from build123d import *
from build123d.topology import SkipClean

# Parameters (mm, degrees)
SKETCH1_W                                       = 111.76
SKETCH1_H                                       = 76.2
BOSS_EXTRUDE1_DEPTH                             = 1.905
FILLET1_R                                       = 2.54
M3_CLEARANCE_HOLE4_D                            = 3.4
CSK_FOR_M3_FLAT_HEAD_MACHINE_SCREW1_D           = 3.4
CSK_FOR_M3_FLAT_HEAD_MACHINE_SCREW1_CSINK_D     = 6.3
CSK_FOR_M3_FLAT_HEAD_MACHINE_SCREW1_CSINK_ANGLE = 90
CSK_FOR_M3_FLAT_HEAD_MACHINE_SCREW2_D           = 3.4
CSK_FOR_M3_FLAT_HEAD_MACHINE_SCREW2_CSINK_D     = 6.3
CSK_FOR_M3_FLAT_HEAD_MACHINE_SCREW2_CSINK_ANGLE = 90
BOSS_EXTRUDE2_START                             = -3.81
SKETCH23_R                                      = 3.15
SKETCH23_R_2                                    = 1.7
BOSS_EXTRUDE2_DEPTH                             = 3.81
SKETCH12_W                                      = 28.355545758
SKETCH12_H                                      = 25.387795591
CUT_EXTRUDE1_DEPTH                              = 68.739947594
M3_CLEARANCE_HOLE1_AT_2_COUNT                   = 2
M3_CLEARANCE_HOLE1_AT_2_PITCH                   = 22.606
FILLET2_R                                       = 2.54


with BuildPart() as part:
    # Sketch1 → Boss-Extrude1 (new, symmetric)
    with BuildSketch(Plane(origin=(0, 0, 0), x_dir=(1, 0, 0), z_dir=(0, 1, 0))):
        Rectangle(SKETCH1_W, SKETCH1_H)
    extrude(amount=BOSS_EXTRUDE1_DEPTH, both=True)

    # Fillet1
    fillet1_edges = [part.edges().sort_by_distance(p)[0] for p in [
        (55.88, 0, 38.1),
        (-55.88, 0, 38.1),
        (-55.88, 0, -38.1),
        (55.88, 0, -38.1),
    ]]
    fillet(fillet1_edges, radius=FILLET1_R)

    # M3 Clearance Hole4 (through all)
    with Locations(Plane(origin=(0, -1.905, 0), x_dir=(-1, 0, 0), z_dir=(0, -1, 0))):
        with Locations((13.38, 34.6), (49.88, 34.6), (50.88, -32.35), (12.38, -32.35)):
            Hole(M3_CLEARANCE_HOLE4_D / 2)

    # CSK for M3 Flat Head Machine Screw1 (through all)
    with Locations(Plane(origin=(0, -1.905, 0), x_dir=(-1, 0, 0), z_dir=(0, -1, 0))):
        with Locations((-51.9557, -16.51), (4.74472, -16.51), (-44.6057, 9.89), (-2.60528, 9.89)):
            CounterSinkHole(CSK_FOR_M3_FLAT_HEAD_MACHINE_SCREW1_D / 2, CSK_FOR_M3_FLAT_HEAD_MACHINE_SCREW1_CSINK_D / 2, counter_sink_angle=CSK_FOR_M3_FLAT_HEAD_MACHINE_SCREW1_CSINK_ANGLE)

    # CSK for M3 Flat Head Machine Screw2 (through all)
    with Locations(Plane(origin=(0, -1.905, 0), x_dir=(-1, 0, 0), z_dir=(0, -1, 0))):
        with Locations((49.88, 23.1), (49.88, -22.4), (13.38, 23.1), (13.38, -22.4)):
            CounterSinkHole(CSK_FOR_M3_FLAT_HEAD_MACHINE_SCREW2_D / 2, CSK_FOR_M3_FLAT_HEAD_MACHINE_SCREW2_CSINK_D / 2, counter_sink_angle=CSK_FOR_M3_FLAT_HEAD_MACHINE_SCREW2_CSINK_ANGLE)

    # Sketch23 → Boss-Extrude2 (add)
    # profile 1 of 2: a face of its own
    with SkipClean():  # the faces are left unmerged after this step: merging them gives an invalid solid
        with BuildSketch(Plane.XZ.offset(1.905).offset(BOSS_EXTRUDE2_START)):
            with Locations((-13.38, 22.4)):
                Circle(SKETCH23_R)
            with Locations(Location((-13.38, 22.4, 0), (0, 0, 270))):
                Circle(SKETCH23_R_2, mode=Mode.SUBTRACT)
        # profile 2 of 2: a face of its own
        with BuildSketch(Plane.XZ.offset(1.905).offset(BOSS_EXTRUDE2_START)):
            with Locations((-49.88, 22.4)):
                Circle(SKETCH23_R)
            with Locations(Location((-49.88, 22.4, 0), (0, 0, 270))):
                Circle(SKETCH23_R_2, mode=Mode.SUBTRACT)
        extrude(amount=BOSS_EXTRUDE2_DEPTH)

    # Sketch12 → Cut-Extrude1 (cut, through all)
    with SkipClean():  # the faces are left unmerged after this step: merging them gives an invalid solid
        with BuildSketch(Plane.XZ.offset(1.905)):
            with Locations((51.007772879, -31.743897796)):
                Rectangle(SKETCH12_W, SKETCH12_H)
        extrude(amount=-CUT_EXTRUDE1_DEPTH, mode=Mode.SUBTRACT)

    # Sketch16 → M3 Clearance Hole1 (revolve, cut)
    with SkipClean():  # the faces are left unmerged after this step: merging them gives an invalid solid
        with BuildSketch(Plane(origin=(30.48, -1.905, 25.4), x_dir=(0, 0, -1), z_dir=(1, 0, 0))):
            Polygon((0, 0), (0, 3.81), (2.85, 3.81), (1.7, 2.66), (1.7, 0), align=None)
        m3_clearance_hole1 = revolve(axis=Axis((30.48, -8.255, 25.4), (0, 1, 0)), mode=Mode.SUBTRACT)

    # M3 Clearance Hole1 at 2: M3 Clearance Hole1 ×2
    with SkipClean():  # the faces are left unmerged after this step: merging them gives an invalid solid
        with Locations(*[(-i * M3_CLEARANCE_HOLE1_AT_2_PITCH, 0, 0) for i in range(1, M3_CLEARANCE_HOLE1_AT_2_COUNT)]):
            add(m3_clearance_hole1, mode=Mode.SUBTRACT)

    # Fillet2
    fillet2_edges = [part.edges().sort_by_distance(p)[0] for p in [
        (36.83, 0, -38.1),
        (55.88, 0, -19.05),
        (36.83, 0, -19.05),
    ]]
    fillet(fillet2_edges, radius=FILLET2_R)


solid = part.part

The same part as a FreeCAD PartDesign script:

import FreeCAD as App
import Part
import Sketcher

V = App.Vector
Q = App.Units.Quantity


def edges_at(feature, points):
    """Names of the edges that pass closest to the given points."""
    edges = feature.Shape.Edges
    near = lambda p: min(range(len(edges)), key=lambda i: edges[i].distToShape(Part.Vertex(*p))[0])
    return sorted({f"Edge{near(p) + 1}" for p in points})

doc = App.newDocument("Part")
body = doc.addObject("PartDesign::Body", "Body")

# Sketch on XZ plane
sketch1 = doc.addObject("Sketcher::SketchObject", "Sketch")
body.addObject(sketch1)
sketch1.AttachmentSupport = (doc.XZ_Plane, [""])
sketch1.MapMode = "FlatFace"
sketch1.addGeometry(Part.LineSegment(V(-56, -38, 0), V(-56, 38, 0)), False)
sketch1.addGeometry(Part.LineSegment(V(-56, 38, 0), V(56, 38, 0)), False)
sketch1.addGeometry(Part.LineSegment(V(56, 38, 0), V(56, -38, 0)), False)
sketch1.addGeometry(Part.LineSegment(V(56, -38, 0), V(-56, -38, 0)), False)
sketch1.addConstraint(Sketcher.Constraint("Coincident", 0, 2, 1, 1))
sketch1.addConstraint(Sketcher.Constraint("Coincident", 1, 2, 2, 1))
sketch1.addConstraint(Sketcher.Constraint("Coincident", 2, 2, 3, 1))
sketch1.addConstraint(Sketcher.Constraint("Coincident", 3, 2, 0, 1))
sketch1.addConstraint(Sketcher.Constraint("Vertical", 0))
sketch1.addConstraint(Sketcher.Constraint("Horizontal", 1))
sketch1.addConstraint(Sketcher.Constraint("Vertical", 2))
sketch1.addConstraint(Sketcher.Constraint("Horizontal", 3))
sketch1.addConstraint(Sketcher.Constraint("Symmetric", 0, 2, 2, 2, -1, 1))
sketch1.addConstraint(Sketcher.Constraint("DistanceY", 0, 1, 0, 2, Q("3 in")))
sketch1.addConstraint(Sketcher.Constraint("DistanceX", 1, 1, 1, 2, Q("4.4 in")))
pad1 = doc.addObject("PartDesign::Pad", "Pad")
body.addObject(pad1)
pad1.Profile = sketch1
pad1.Length = Q("0.15 in")
pad1.Midplane = True
doc.recompute()

fillet = doc.addObject("PartDesign::Fillet", "Fillet")
body.addObject(fillet)
fillet.Base = (pad1, edges_at(pad1, [
    (55.88, 0, 38.1),
    (-55.88, 0, 38.1),
    (-55.88, 0, -38.1),
    (55.88, 0, -38.1),
]))
fillet.Radius = Q("0.1 in")

# Sketch on XZ plane
sketch2 = doc.addObject("Sketcher::SketchObject", "Sketch001")
body.addObject(sketch2)
sketch2.AttachmentSupport = (doc.XZ_Plane, [""])
sketch2.MapMode = "FlatFace"
sketch2.AttachmentOffset = App.Placement(V(0, 0, 0.075 * 25.4), App.Rotation())
sketch2.addGeometry(Part.Circle(V(-13.4, -34.6, 0), V(0, 0, 1), 1.7), False)
sketch2.addGeometry(Part.Circle(V(-49.9, -34.6, 0), V(0, 0, 1), 1.7), False)
sketch2.addGeometry(Part.Circle(V(-50.9, 32.4, 0), V(0, 0, 1), 1.7), False)
sketch2.addGeometry(Part.Circle(V(-12.4, 32.4, 0), V(0, 0, 1), 1.7), False)
sketch2.addConstraint(Sketcher.Constraint("Equal", 0, 1))
sketch2.addConstraint(Sketcher.Constraint("Equal", 1, 2))
sketch2.addConstraint(Sketcher.Constraint("Equal", 2, 3))
sketch2.addConstraint(Sketcher.Constraint("Horizontal", 0, 3, 1, 3))
sketch2.addConstraint(Sketcher.Constraint("Horizontal", 2, 3, 3, 3))
sketch2.addConstraint(Sketcher.Constraint("Diameter", 0, Q("3.4 mm")))
sketch2.addConstraint(Sketcher.Constraint("DistanceX", 0, 3, -1, 1, Q("13.38 mm")))
sketch2.addConstraint(Sketcher.Constraint("DistanceY", 0, 3, -1, 1, Q("34.6 mm")))
sketch2.addConstraint(Sketcher.Constraint("DistanceX", 1, 3, -1, 1, Q("49.88 mm")))
sketch2.addConstraint(Sketcher.Constraint("DistanceX", 2, 3, -1, 1, Q("50.88 mm")))
sketch2.addConstraint(Sketcher.Constraint("DistanceY", -1, 1, 2, 3, Q("32.35 mm")))
sketch2.addConstraint(Sketcher.Constraint("DistanceX", 3, 3, -1, 1, Q("12.38 mm")))
doc.recompute()
hole = doc.addObject("PartDesign::Hole", "Hole")
body.addObject(hole)
hole.Profile = sketch2
hole.ThreadType = "None"
hole.Diameter = 3.4
hole.DepthType = "ThroughAll"

# Sketch on XZ plane
sketch3 = doc.addObject("Sketcher::SketchObject", "Sketch002")
body.addObject(sketch3)
sketch3.AttachmentSupport = (doc.XZ_Plane, [""])
sketch3.MapMode = "FlatFace"
sketch3.AttachmentOffset = App.Placement(V(0, 0, 0.075 * 25.4), App.Rotation())
sketch3.addGeometry(Part.Circle(V(52, 16.5, 0), V(0, 0, 1), 1.7), False)
sketch3.addGeometry(Part.Circle(V(-4.7, 16.5, 0), V(0, 0, 1), 1.7), False)
sketch3.addGeometry(Part.Circle(V(44.6, -9.9, 0), V(0, 0, 1), 1.7), False)
sketch3.addGeometry(Part.Circle(V(2.6, -9.9, 0), V(0, 0, 1), 1.7), False)
sketch3.addConstraint(Sketcher.Constraint("Equal", 0, 1))
sketch3.addConstraint(Sketcher.Constraint("Equal", 1, 2))
sketch3.addConstraint(Sketcher.Constraint("Equal", 2, 3))
sketch3.addConstraint(Sketcher.Constraint("Horizontal", 0, 3, 1, 3))
sketch3.addConstraint(Sketcher.Constraint("Horizontal", 2, 3, 3, 3))
sketch3.addConstraint(Sketcher.Constraint("Diameter", 0, Q("3.4 mm")))
sketch3.addConstraint(Sketcher.Constraint("DistanceY", -1, 1, 0, 3, Q("0.65 in")))
sketch3.addConstraint(Sketcher.Constraint("DistanceX", -1, 1, 0, 3, Q("2.0455 in")))
sketch3.addConstraint(Sketcher.Constraint("DistanceX", 1, 3, -1, 1, Q("0.1868 in")))
sketch3.addConstraint(Sketcher.Constraint("DistanceX", -1, 1, 2, 3, Q("44.6057 mm")))
sketch3.addConstraint(Sketcher.Constraint("DistanceY", 2, 3, -1, 1, Q("9.89 mm")))
sketch3.addConstraint(Sketcher.Constraint("DistanceX", 1, 3, 3, 3, Q("7.35 mm")))
doc.recompute()
hole2 = doc.addObject("PartDesign::Hole", "Hole001")
body.addObject(hole2)
hole2.Profile = sketch3
hole2.ThreadType = "None"
hole2.Diameter = 3.4
hole2.DepthType = "ThroughAll"
hole2.HoleCutType = "Countersink"
hole2.HoleCutDiameter = 6.3
hole2.HoleCutCountersinkAngle = 90

# Sketch on XZ plane
sketch4 = doc.addObject("Sketcher::SketchObject", "Sketch003")
body.addObject(sketch4)
sketch4.AttachmentSupport = (doc.XZ_Plane, [""])
sketch4.MapMode = "FlatFace"
sketch4.AttachmentOffset = App.Placement(V(0, 0, 0.075 * 25.4), App.Rotation())
sketch4.addGeometry(Part.Circle(V(-49.9, -23.1, 0), V(0, 0, 1), 1.7), False)
sketch4.addGeometry(Part.Circle(V(-49.9, 22.4, 0), V(0, 0, 1), 1.7), False)
sketch4.addGeometry(Part.Circle(V(-13.4, -23.1, 0), V(0, 0, 1), 1.7), False)
sketch4.addGeometry(Part.Circle(V(-13.4, 22.4, 0), V(0, 0, 1), 1.7), False)
sketch4.addConstraint(Sketcher.Constraint("Equal", 0, 1))
sketch4.addConstraint(Sketcher.Constraint("Equal", 1, 2))
sketch4.addConstraint(Sketcher.Constraint("Equal", 2, 3))
sketch4.addConstraint(Sketcher.Constraint("Horizontal", 0, 3, 2, 3))
sketch4.addConstraint(Sketcher.Constraint("Horizontal", 1, 3, 3, 3))
sketch4.addConstraint(Sketcher.Constraint("Vertical", 0, 3, 1, 3))
sketch4.addConstraint(Sketcher.Constraint("Vertical", 2, 3, 3, 3))
sketch4.addConstraint(Sketcher.Constraint("Diameter", 0, Q("3.4 mm")))
sketch4.addConstraint(Sketcher.Constraint("DistanceX", 0, 3, -1, 1, Q("49.88 mm")))
sketch4.addConstraint(Sketcher.Constraint("DistanceY", 0, 3, -1, 1, Q("23.1 mm")))
sketch4.addConstraint(Sketcher.Constraint("DistanceY", -1, 1, 1, 3, Q("22.4 mm")))
sketch4.addConstraint(Sketcher.Constraint("DistanceX", 2, 3, -1, 1, Q("13.38 mm")))
doc.recompute()
hole3 = doc.addObject("PartDesign::Hole", "Hole002")
body.addObject(hole3)
hole3.Profile = sketch4
hole3.ThreadType = "None"
hole3.Diameter = 3.4
hole3.DepthType = "ThroughAll"
hole3.HoleCutType = "Countersink"
hole3.HoleCutDiameter = 6.3
hole3.HoleCutCountersinkAngle = 90

# Sketch on XZ plane
sketch5 = doc.addObject("Sketcher::SketchObject", "Sketch004")
body.addObject(sketch5)
sketch5.AttachmentSupport = (doc.XZ_Plane, [""])
sketch5.MapMode = "FlatFace"
sketch5.AttachmentOffset = App.Placement(V(0, 0, -0.075 * 25.4), App.Rotation())
sketch5.addGeometry(Part.Circle(V(-13.4, 22.4, 0), V(0, 0, 1), 3.1), False)
sketch5.addGeometry(Part.Circle(V(-13.4, 22.4, 0), V(0, 0, 1), 1.7), False)
sketch5.addGeometry(Part.Circle(V(-49.9, 22.4, 0), V(0, 0, 1), 3.1), False)
sketch5.addGeometry(Part.Circle(V(-49.9, 22.4, 0), V(0, 0, 1), 1.7), False)
sketch5.addConstraint(Sketcher.Constraint("Coincident", 1, 3, 0, 3))
sketch5.addConstraint(Sketcher.Constraint("Coincident", 3, 3, 2, 3))
sketch5.addConstraint(Sketcher.Constraint("Equal", 0, 2))
sketch5.addConstraint(Sketcher.Constraint("Equal", 1, 3))
sketch5.addConstraint(Sketcher.Constraint("Horizontal", 1, 3, 2, 3))
sketch5.addConstraint(Sketcher.Constraint("Diameter", 0, Q("6.3 mm")))
sketch5.addConstraint(Sketcher.Constraint("Diameter", 1, Q("3.4 mm")))
sketch5.addConstraint(Sketcher.Constraint("DistanceX", 0, 3, -1, 1, Q("13.38 mm")))
sketch5.addConstraint(Sketcher.Constraint("DistanceY", -1, 1, 0, 3, Q("22.4 mm")))
sketch5.addConstraint(Sketcher.Constraint("DistanceX", 2, 3, -1, 1, Q("49.88 mm")))
pad2 = doc.addObject("PartDesign::Pad", "Pad001")
body.addObject(pad2)
pad2.Profile = sketch5
pad2.Length = Q("0.15 in")

# Sketch on XZ plane
sketch6 = doc.addObject("Sketcher::SketchObject", "Sketch005")
body.addObject(sketch6)
sketch6.AttachmentSupport = (doc.XZ_Plane, [""])
sketch6.MapMode = "FlatFace"
sketch6.AttachmentOffset = App.Placement(V(0, 0, 0.075 * 25.4), App.Rotation())
sketch6.addGeometry(Part.LineSegment(V(37, -19, 0), V(37, -44, 0)), False)
sketch6.addGeometry(Part.LineSegment(V(37, -44, 0), V(65, -44, 0)), False)
sketch6.addGeometry(Part.LineSegment(V(65, -44, 0), V(65, -19, 0)), False)
sketch6.addGeometry(Part.LineSegment(V(65, -19, 0), V(37, -19, 0)), False)
sketch6.addConstraint(Sketcher.Constraint("Coincident", 0, 2, 1, 1))
sketch6.addConstraint(Sketcher.Constraint("Coincident", 1, 2, 2, 1))
sketch6.addConstraint(Sketcher.Constraint("Coincident", 2, 2, 3, 1))
sketch6.addConstraint(Sketcher.Constraint("Coincident", 3, 2, 0, 1))
sketch6.addConstraint(Sketcher.Constraint("Vertical", 0))
sketch6.addConstraint(Sketcher.Constraint("Horizontal", 1))
sketch6.addConstraint(Sketcher.Constraint("Vertical", 2))
sketch6.addConstraint(Sketcher.Constraint("Horizontal", 3))
sketch6.addConstraint(Sketcher.Constraint("DistanceX", -1, 1, 0, 2, Q("1.45 in")))
sketch6.addConstraint(Sketcher.Constraint("DistanceY", 2, 2, -1, 1, Q("0.75 in")))
sketch6.addConstraint(Sketcher.Constraint("DistanceX", 1, 1, 1, 2, Q("28.355546 mm")))
sketch6.addConstraint(Sketcher.Constraint("DistanceY", 0, 2, 0, 1, Q("25.387796 mm")))
pocket1 = doc.addObject("PartDesign::Pocket", "Pocket")
body.addObject(pocket1)
pocket1.Profile = sketch6
pocket1.Type = "ThroughAll"

# Sketch on YZ plane
sketch7 = doc.addObject("Sketcher::SketchObject", "Sketch006")
body.addObject(sketch7)
sketch7.AttachmentSupport = (doc.YZ_Plane, [""])
sketch7.MapMode = "FlatFace"
sketch7.AttachmentOffset = App.Placement(V(0, 0, 1.2 * 25.4), App.Rotation())
sketch7.addGeometry(Part.LineSegment(V(1.9, 25.4, 0), V(-1.9, 25.4, 0)), False)
sketch7.addGeometry(Part.LineSegment(V(-1.9, 25.4, 0), V(-1.9, 23.7, 0)), False)
sketch7.addGeometry(Part.LineSegment(V(-1.9, 23.7, 0), V(0.8, 23.7, 0)), False)
sketch7.addGeometry(Part.LineSegment(V(0.8, 23.7, 0), V(1.9, 22.6, 0)), False)
sketch7.addGeometry(Part.LineSegment(V(1.9, 22.6, 0), V(1.9, 25.4, 0)), False)
sketch7.addGeometry(Part.LineSegment(V(-1.9, 25.4, 0), V(1.9, 25.4, 0)), True)  # axis
sketch7.addConstraint(Sketcher.Constraint("Coincident", 0, 2, 1, 1))
sketch7.addConstraint(Sketcher.Constraint("Coincident", 1, 2, 2, 1))
sketch7.addConstraint(Sketcher.Constraint("Coincident", 2, 2, 3, 1))
sketch7.addConstraint(Sketcher.Constraint("Coincident", 3, 2, 4, 1))
sketch7.addConstraint(Sketcher.Constraint("Coincident", 4, 2, 0, 1))
sketch7.addConstraint(Sketcher.Constraint("Horizontal", 0))
sketch7.addConstraint(Sketcher.Constraint("Vertical", 1))
sketch7.addConstraint(Sketcher.Constraint("Horizontal", 2))
sketch7.addConstraint(Sketcher.Constraint("Vertical", 4))
sketch7.addConstraint(Sketcher.Constraint("Horizontal", 5))
sketch7.addConstraint(Sketcher.Constraint("Coincident", 5, 1, 0, 2))
sketch7.addConstraint(Sketcher.Constraint("Vertical", 3, 2, 5, 2))
sketch7.addConstraint(Sketcher.Constraint("DistanceY", -1, 1, 0, 2, Q("1 in")))
sketch7.addConstraint(Sketcher.Constraint("Angle", 3, Q("-45 deg")))
sketch7.addConstraint(Sketcher.Constraint("DistanceX", 0, 2, 0, 1, Q("0.15 in")))
sketch7.addConstraint(Sketcher.Constraint("DistanceX", 0, 2, -1, 1, Q("0.075 in")))
sketch7.addConstraint(Sketcher.Constraint("DistanceX", 2, 1, 2, 2, Q("2.66 mm")))
sketch7.addConstraint(Sketcher.Constraint("DistanceY", 1, 2, 1, 1, Q("1.7 mm")))
groove = doc.addObject("PartDesign::Groove", "Groove")
body.addObject(groove)
groove.Profile = sketch7
groove.ReferenceAxis = (sketch7, ["Axis0"])
groove.Angle = 360
doc.recompute()

linearpattern = doc.addObject("PartDesign::LinearPattern", "LinearPattern")
body.addObject(linearpattern)
linearpattern.Originals = [groove]
linearpattern.Direction = (doc.X_Axis, [""])
linearpattern.Mode = "offset"
linearpattern.Offset = Q("0.89 in")
linearpattern.Occurrences = 2
linearpattern.Reversed = True
body.Tip = linearpattern
doc.recompute()

fillet2 = doc.addObject("PartDesign::Fillet", "Fillet001")
body.addObject(fillet2)
fillet2.Base = (linearpattern, edges_at(linearpattern, [(36.83, 0, -38.1), (55.88, 0, -19.05), (36.83, 0, -19.05)]))
fillet2.Radius = Q("0.1 in")

doc.recompute()
